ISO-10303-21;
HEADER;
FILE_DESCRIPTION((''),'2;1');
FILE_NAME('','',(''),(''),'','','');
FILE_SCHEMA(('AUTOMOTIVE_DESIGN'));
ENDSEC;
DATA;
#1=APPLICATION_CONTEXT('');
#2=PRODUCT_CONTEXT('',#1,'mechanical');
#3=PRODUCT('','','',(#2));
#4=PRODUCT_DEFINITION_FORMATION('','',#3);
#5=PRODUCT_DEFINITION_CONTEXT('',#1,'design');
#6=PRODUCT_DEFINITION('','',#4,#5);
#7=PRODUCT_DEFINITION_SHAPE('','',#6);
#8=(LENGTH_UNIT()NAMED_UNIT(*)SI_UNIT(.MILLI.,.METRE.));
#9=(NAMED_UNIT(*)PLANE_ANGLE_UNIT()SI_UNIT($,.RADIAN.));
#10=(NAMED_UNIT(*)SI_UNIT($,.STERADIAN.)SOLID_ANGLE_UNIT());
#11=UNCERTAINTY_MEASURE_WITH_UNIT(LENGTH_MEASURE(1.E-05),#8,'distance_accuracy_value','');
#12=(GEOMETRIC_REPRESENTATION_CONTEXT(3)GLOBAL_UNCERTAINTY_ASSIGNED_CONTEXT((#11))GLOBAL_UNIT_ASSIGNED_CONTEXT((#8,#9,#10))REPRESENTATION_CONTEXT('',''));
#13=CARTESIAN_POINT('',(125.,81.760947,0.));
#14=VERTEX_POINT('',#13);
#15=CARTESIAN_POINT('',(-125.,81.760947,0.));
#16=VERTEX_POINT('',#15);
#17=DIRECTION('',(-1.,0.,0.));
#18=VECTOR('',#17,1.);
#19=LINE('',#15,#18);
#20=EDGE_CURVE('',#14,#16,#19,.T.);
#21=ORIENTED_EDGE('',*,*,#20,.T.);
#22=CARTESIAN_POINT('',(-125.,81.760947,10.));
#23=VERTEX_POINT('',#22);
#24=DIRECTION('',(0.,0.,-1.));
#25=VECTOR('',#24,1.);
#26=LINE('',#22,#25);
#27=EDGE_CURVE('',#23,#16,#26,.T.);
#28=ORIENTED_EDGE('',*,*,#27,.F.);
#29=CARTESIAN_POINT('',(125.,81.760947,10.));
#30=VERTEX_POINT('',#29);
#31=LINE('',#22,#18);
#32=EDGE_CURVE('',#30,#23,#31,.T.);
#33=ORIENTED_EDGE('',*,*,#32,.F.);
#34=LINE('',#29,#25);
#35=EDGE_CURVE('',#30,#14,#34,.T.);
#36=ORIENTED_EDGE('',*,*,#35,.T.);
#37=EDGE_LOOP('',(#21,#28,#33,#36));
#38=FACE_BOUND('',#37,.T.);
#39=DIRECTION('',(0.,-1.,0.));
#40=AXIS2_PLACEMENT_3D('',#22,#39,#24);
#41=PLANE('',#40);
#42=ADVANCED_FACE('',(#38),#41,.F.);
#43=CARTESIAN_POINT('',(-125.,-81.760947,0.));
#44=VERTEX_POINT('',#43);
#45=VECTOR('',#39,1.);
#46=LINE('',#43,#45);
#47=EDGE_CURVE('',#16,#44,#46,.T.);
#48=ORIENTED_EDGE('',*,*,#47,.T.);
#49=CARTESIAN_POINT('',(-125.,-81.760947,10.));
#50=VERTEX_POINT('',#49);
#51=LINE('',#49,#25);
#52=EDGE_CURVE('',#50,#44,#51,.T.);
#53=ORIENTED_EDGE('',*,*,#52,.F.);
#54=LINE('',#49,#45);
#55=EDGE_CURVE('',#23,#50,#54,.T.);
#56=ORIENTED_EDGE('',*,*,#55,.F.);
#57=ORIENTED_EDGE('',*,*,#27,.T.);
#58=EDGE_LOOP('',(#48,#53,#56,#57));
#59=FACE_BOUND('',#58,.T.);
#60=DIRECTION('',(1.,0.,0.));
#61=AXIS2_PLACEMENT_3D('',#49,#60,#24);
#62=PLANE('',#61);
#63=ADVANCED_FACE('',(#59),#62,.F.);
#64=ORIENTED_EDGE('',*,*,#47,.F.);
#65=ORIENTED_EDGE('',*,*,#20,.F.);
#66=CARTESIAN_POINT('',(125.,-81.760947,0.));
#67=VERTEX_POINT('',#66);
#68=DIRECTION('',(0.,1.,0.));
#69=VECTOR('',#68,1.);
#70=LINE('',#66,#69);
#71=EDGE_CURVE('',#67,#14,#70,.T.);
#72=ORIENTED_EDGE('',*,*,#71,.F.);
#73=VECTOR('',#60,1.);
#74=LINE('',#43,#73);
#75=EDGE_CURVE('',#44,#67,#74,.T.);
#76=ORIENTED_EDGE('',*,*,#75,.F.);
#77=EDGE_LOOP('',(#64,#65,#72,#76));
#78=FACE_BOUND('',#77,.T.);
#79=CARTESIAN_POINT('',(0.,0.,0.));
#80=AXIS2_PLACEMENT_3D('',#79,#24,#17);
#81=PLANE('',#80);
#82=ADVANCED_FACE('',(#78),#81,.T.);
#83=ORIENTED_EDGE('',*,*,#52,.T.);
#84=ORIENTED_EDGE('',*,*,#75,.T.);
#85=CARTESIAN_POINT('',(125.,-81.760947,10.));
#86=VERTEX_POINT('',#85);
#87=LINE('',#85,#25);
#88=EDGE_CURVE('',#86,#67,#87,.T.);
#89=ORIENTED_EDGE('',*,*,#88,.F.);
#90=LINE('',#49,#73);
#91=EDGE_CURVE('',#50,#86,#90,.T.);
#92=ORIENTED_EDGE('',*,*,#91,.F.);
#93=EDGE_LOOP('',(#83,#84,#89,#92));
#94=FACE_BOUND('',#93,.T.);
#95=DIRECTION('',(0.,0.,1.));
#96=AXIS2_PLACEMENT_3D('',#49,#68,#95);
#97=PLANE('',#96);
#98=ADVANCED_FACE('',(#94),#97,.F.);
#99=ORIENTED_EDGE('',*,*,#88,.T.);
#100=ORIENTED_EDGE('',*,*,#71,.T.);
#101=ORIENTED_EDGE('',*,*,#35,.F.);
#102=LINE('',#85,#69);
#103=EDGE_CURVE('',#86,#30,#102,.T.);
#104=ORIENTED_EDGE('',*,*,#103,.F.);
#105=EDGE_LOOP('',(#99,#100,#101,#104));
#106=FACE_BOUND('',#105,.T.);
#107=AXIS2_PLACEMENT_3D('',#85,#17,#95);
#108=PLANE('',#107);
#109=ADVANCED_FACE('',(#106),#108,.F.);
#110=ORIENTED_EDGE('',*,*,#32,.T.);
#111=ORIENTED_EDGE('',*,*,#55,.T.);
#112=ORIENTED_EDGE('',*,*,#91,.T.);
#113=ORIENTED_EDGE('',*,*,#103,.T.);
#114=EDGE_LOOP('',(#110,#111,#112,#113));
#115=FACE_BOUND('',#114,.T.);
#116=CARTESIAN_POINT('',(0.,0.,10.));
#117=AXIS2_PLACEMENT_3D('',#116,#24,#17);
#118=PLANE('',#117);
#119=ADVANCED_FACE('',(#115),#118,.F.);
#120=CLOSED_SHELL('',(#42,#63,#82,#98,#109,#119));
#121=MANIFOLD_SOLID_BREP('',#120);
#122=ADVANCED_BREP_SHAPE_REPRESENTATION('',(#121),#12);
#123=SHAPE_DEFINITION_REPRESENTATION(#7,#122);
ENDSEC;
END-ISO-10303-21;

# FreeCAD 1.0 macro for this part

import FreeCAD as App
import Part
import Sketcher

V = App.Vector
Q = App.Units.Quantity

doc = App.newDocument("Part")
params = doc.addObject("Spreadsheet::Sheet", "Params")
for row, (alias, value) in enumerate([
    ("sketch1_width", "250 mm"),
    ("pad1_length", "10 mm"),
], start=1):
    params.set(f"A{row}", alias)
    params.set(f"B{row}", "=" + value)
    params.setAlias(f"B{row}", alias)

body = doc.addObject("PartDesign::Body", "Body")

sketch1 = doc.addObject("Sketcher::SketchObject", "Sketch")
body.addObject(sketch1)
sketch1.AttachmentSupport = (doc.XY_Plane, [""])
sketch1.MapMode = "FlatFace"
sketch1.addGeometry(Part.LineSegment(V(-125, 82, 0), V(-125, -82, 0)), False)
sketch1.addGeometry(Part.LineSegment(V(-125, -82, 0), V(125, -82, 0)), False)
sketch1.addGeometry(Part.LineSegment(V(125, -82, 0), V(125, 82, 0)), False)
sketch1.addGeometry(Part.LineSegment(V(125, 82, 0), V(-125, 82, 0)), False)
sketch1.addConstraint(Sketcher.Constraint("Coincident", 0, 2, 1, 1))
sketch1.addConstraint(Sketcher.Constraint("Coincident", 1, 2, 2, 1))
sketch1.addConstraint(Sketcher.Constraint("Coincident", 2, 2, 3, 1))
sketch1.addConstraint(Sketcher.Constraint("Coincident", 3, 2, 0, 1))
sketch1.addConstraint(Sketcher.Constraint("Vertical", 0))
sketch1.addConstraint(Sketcher.Constraint("Horizontal", 1))
sketch1.addConstraint(Sketcher.Constraint("Vertical", 2))
sketch1.addConstraint(Sketcher.Constraint("Horizontal", 3))
sketch1.addConstraint(Sketcher.Constraint("Symmetric", 0, 2, 2, 2, -1, 1))
sketch1.addConstraint(Sketcher.Constraint("DistanceX", 1, 1, 1, 2, Q("250 mm")))
sketch1.addConstraint(Sketcher.Constraint("DistanceY", 0, 2, 0, 1, Q("163.521893 mm")))
sketch1.setExpression("Constraints[9]", "Params.sketch1_width")
pad1 = doc.addObject("PartDesign::Pad", "Pad")
body.addObject(pad1)
pad1.Profile = sketch1
pad1.setExpression("Length", "Params.pad1_length")

doc.recompute()
